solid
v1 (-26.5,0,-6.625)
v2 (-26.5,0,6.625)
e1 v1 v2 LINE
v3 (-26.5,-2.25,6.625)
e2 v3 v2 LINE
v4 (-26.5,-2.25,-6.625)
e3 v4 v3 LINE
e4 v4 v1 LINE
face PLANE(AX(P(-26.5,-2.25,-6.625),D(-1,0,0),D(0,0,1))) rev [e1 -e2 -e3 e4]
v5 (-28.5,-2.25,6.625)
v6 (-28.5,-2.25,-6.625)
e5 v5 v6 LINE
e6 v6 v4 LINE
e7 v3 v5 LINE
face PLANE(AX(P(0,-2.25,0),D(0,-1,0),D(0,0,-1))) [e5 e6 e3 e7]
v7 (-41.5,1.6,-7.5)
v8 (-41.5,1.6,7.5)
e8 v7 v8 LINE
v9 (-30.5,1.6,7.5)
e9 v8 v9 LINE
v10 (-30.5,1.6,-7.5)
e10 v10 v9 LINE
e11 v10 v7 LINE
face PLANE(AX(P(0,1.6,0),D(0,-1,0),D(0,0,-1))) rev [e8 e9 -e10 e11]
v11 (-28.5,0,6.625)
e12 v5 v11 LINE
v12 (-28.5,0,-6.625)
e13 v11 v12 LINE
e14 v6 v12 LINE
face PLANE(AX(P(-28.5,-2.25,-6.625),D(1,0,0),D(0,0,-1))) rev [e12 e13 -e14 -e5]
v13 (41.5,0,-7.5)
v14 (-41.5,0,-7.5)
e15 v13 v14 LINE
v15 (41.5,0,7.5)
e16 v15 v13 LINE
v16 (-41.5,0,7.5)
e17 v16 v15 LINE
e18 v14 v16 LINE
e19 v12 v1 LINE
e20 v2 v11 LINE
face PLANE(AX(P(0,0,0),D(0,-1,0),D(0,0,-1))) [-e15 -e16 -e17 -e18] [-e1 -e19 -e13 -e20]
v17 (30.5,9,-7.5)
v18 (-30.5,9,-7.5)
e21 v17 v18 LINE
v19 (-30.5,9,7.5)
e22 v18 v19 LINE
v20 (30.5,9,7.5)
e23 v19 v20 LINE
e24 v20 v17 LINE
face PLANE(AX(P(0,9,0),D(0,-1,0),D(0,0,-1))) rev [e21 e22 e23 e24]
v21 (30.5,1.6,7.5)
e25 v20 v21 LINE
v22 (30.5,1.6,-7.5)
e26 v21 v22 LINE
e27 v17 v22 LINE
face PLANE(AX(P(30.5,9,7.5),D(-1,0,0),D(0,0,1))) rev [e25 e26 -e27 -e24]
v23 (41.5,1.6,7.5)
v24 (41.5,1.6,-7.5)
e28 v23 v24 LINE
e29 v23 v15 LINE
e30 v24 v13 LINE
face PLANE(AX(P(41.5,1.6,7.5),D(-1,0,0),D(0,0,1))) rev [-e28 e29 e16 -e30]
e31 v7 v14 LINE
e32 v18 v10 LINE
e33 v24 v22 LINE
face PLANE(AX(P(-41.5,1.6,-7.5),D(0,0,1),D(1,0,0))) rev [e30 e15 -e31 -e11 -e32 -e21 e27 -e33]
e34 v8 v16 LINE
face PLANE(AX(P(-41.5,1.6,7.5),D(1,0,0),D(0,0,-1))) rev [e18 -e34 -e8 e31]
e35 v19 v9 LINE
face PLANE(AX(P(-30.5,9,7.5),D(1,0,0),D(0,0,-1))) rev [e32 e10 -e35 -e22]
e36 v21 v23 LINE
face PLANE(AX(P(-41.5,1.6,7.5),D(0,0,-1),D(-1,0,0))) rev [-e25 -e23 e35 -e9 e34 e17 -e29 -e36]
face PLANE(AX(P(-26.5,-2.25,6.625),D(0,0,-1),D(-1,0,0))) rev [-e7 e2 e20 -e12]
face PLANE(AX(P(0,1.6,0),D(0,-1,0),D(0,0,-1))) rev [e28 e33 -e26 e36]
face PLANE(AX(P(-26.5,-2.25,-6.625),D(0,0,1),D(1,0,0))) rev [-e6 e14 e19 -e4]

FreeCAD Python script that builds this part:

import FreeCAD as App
import Part
import Sketcher


def add_polygon(sketch, points):
    """Adds a closed chain of lines whose ends are joined by coincident constraints."""
    first, n = sketch.GeometryCount, len(points)
    for a, b in zip(points, points[1:] + points[:1]):
        sketch.addGeometry(Part.LineSegment(App.Vector(*a, 0), App.Vector(*b, 0)), False)
    for i in range(n):
        sketch.addConstraint(Sketcher.Constraint("Coincident", first + i, 2, first + (i + 1) % n, 1))

doc = App.newDocument("Part")
params = doc.addObject("Spreadsheet::Sheet", "Params")
for row, (alias, value) in enumerate([
    ("sketch1_width", "83 mm"),
    ("sketch1_height", "15 mm"),
    ("pad1_length", "1.6 mm"),
    ("sketch2_width", "61 mm"),
    ("sketch2_height", "15 mm"),
    ("pad2_length", "7.4 mm"),
    ("sketch3_width", "2 mm"),
    ("sketch3_height", "13.25 mm"),
    ("pad3_length", "2.25 mm"),
], start=1):
    params.set(f"A{row}", alias)
    params.set(f"B{row}", "=" + value)
    params.setAlias(f"B{row}", alias)

body = doc.addObject("PartDesign::Body", "Body")

# Sketch on XZ plane
sketch1 = body.newObject("Sketcher::SketchObject", "Sketch")
sketch1.AttachmentSupport = (doc.getObject("XZ_Plane"), [""])
sketch1.MapMode = "FlatFace"
add_polygon(sketch1, [(-42, -8), (-42, 8), (42, 8), (42, -8)])  # lines 0-3
sketch1.addConstraint(Sketcher.Constraint("Vertical", 0))
sketch1.addConstraint(Sketcher.Constraint("Horizontal", 1))
sketch1.addConstraint(Sketcher.Constraint("Vertical", 2))
sketch1.addConstraint(Sketcher.Constraint("Horizontal", 3))
sketch1.addConstraint(Sketcher.Constraint("Symmetric", 0, 2, 2, 2, -1, 1))
sketch1.addConstraint(Sketcher.Constraint("DistanceX", 1, 1, 1, 2, 83.0))
sketch1.addConstraint(Sketcher.Constraint("DistanceY", 0, 1, 0, 2, 15.0))
sketch1.setExpression("Constraints[9]", "Params.sketch1_width")
sketch1.setExpression("Constraints[10]", "Params.sketch1_height")
pad1 = body.newObject("PartDesign::Pad", "Pad")
pad1.Profile = sketch1
pad1.setExpression("Length", "Params.pad1_length")
pad1.Reversed = True

# Sketch on XZ plane
sketch2 = body.newObject("Sketcher::SketchObject", "Sketch001")
sketch2.AttachmentSupport = (doc.getObject("XZ_Plane"), [""])
sketch2.MapMode = "FlatFace"
sketch2.AttachmentOffset = App.Placement(App.Vector(0, 0, -1.6), App.Rotation())
add_polygon(sketch2, [(-30, -8), (-30, 8), (30, 8), (30, -8)])  # lines 0-3
sketch2.addConstraint(Sketcher.Constraint("Vertical", 0))
sketch2.addConstraint(Sketcher.Constraint("Horizontal", 1))
sketch2.addConstraint(Sketcher.Constraint("Vertical", 2))
sketch2.addConstraint(Sketcher.Constraint("Horizontal", 3))
sketch2.addConstraint(Sketcher.Constraint("Symmetric", 0, 2, 2, 2, -1, 1))
sketch2.addConstraint(Sketcher.Constraint("DistanceX", 1, 1, 1, 2, 61.0))
sketch2.addConstraint(Sketcher.Constraint("DistanceY", 0, 1, 0, 2, 15.0))
sketch2.setExpression("Constraints[9]", "Params.sketch2_width")
sketch2.setExpression("Constraints[10]", "Params.sketch2_height")
pad2 = body.newObject("PartDesign::Pad", "Pad001")
pad2.Profile = sketch2
pad2.setExpression("Length", "Params.pad2_length")
pad2.Reversed = True

# Sketch on XZ plane
sketch3 = body.newObject("Sketcher::SketchObject", "Sketch002")
sketch3.AttachmentSupport = (doc.getObject("XZ_Plane"), [""])
sketch3.MapMode = "FlatFace"
add_polygon(sketch3, [(-26.5, -6.6), (-26.5, 6.6), (-28.5, 6.6), (-28.5, -6.6)])  # lines 0-3
sketch3.addConstraint(Sketcher.Constraint("Vertical", 0))
sketch3.addConstraint(Sketcher.Constraint("Horizontal", 1))
sketch3.addConstraint(Sketcher.Constraint("Vertical", 2))
sketch3.addConstraint(Sketcher.Constraint("Horizontal", 3))
sketch3.addConstraint(Sketcher.Constraint("DistanceX", 1, 2, 1, 1, 2.0))
sketch3.addConstraint(Sketcher.Constraint("DistanceY", 0, 1, 0, 2, 13.25))
sketch3.addConstraint(Sketcher.Constraint("DistanceX", 0, 2, -1, 1, 26.5))
sketch3.addConstraint(Sketcher.Constraint("DistanceY", -1, 1, 0, 2, 6.625))
sketch3.setExpression("Constraints[8]", "Params.sketch3_width")
sketch3.setExpression("Constraints[9]", "Params.sketch3_height")
pad3 = body.newObject("PartDesign::Pad", "Pad002")
pad3.Profile = sketch3
pad3.setExpression("Length", "Params.pad3_length")

doc.recompute()
